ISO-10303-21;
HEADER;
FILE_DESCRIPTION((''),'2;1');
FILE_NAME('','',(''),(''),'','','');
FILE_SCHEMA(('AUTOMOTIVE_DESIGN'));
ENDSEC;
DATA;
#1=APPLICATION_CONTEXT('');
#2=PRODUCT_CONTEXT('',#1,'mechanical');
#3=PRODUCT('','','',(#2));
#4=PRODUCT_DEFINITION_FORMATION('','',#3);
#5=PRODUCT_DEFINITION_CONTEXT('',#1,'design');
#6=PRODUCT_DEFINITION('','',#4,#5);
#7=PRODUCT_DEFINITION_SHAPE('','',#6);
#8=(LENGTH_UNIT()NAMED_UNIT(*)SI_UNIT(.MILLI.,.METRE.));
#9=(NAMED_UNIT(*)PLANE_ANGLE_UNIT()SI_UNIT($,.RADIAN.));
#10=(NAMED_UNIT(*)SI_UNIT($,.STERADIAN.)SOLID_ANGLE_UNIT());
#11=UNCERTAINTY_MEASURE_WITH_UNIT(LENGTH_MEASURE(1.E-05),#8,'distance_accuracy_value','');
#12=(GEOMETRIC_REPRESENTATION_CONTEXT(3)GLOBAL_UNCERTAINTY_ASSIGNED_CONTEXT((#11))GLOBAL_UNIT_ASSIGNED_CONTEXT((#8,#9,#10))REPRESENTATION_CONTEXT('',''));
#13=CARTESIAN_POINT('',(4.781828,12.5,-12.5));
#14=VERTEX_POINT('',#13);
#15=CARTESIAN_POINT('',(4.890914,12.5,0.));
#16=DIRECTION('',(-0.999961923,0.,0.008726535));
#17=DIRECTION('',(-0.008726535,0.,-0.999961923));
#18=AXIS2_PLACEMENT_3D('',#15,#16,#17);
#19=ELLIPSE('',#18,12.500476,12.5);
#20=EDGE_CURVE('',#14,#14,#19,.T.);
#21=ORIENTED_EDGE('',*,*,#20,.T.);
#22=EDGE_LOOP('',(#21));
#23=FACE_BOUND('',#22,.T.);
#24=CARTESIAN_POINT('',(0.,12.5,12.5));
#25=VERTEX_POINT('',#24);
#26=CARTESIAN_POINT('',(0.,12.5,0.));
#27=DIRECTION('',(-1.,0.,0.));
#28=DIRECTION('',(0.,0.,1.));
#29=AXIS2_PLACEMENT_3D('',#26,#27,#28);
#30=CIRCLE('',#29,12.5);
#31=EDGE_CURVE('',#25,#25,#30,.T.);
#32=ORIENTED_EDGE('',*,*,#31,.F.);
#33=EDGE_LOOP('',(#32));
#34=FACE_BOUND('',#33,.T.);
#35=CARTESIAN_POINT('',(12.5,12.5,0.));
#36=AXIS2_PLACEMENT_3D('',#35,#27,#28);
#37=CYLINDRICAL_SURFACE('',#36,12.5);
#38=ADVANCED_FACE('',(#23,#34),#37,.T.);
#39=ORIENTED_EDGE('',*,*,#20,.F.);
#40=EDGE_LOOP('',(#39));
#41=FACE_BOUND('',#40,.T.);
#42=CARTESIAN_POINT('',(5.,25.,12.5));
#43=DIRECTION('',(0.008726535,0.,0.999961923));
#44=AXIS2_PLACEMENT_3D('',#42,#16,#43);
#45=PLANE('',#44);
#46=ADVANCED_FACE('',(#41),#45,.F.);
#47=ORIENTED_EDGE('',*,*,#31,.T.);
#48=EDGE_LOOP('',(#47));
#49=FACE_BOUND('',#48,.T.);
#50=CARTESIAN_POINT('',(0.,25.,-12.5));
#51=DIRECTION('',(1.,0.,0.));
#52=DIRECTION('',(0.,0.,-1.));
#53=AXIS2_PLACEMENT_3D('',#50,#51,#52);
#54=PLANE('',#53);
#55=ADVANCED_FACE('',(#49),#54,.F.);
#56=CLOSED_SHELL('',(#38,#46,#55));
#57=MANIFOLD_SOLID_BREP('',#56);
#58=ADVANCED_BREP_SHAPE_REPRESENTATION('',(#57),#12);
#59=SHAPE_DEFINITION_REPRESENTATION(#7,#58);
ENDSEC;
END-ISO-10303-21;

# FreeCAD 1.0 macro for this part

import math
import FreeCAD as App
import Part
import Sketcher
from FreeCAD import Vector
Q = App.Units.Quantity


def add_polygon(sketch, points):
    """Adds a closed chain of lines whose ends are joined by coincident constraints."""
    first, n = sketch.GeometryCount, len(points)
    for a, b in zip(points, points[1:] + points[:1]):
        sketch.addGeometry(Part.LineSegment(App.Vector(*a, 0), App.Vector(*b, 0)), False)
    for i in range(n):
        sketch.addConstraint(Sketcher.Constraint("Coincident", first + i, 2, first + (i + 1) % n, 1))

doc = App.newDocument("Part")
body = doc.addObject("PartDesign::Body", "Body")

# Sketch on XZ plane
sketch1 = body.newObject("Sketcher::SketchObject", "Sketch")
sketch1.AttachmentSupport = (doc.getObject("XZ_Plane"), [""])
sketch1.MapMode = "FlatFace"
add_polygon(sketch1, [(0, -12.5), (0, 12.5), (5, 12.5), (4.8, -12.5)])  # lines 0-3
sketch1.addConstraint([
    Sketcher.Constraint("Vertical", 0),
    Sketcher.Constraint("Horizontal", 1),
    Sketcher.Constraint("Horizontal", 3),
    Sketcher.Constraint("Symmetric", 0, 2, 3, 2, -1, 1),
    Sketcher.Constraint("DistanceX", 1, 1, 1, 2, 5.0),
    Sketcher.Constraint("DistanceY", 0, 1, 0, 2, 25.0),
    Sketcher.Constraint("Angle", 2, Q("-90.5 deg")),
])
pad1 = body.newObject("PartDesign::Pad", "Pad")
pad1.Profile = sketch1
pad1.Length = 25
pad1.Reversed = True

# Sketch on YZ plane
sketch2 = body.newObject("Sketcher::SketchObject", "Sketch001")
sketch2.AttachmentSupport = (doc.getObject("YZ_Plane"), [""])
sketch2.MapMode = "FlatFace"
sketch2.addGeometry([
    Part.LineSegment(Vector(25, -12, 0), Vector(12, -12, 0)),  # 0
    Part.ArcOfCircle(Part.Circle(Vector(13, 0, 0), Vector(0, 0, 1), 12), math.radians(-90), math.radians(0)),  # 1
    Part.LineSegment(Vector(25, 0, 0), Vector(25, -12, 0)),  # 2
    Part.LineSegment(Vector(12, -12, 0), Vector(0, -12, 0)),  # 3
    Part.LineSegment(Vector(0, -12, 0), Vector(0, 0, 0)),  # 4
    Part.ArcOfCircle(Part.Circle(Vector(12, 0, 0), Vector(0, 0, 1), 12), math.radians(-180), math.radians(-90)),  # 5
    Part.ArcOfCircle(Part.Circle(Vector(12, 0, 0), Vector(0, 0, 1), 12), math.radians(90), math.radians(180)),  # 6
    Part.LineSegment(Vector(0, 0, 0), Vector(0, 12, 0)),  # 7
    Part.LineSegment(Vector(0, 12, 0), Vector(12, 12, 0)),  # 8
    Part.ArcOfCircle(Part.Circle(Vector(13, 0, 0), Vector(0, 0, 1), 12), math.radians(0), math.radians(90)),  # 9
    Part.LineSegment(Vector(12, 12, 0), Vector(25, 12, 0)),  # 10
    Part.LineSegment(Vector(25, 12, 0), Vector(25, 0, 0)),  # 11
], False)
sketch2.addConstraint([
    Sketcher.Constraint("Tangent", 0, 2, 1, 1),
    Sketcher.Constraint("Tangent", 1, 2, 2, 1),
    Sketcher.Constraint("Coincident", 2, 2, 0, 1),
    Sketcher.Constraint("Coincident", 3, 2, 4, 1),
    Sketcher.Constraint("Tangent", 4, 2, 5, 1),
    Sketcher.Constraint("Tangent", 5, 2, 3, 1),
    Sketcher.Constraint("Tangent", 6, 2, 7, 1),
    Sketcher.Constraint("Coincident", 7, 2, 8, 1),
    Sketcher.Constraint("Tangent", 8, 2, 6, 1),
    Sketcher.Constraint("Tangent", 9, 2, 10, 1),
    Sketcher.Constraint("Coincident", 10, 2, 11, 1),
    Sketcher.Constraint("Tangent", 11, 2, 9, 1),
    Sketcher.Constraint("Horizontal", 0),
    Sketcher.Constraint("Vertical", 2),
    Sketcher.Constraint("Horizontal", 3),
    Sketcher.Constraint("Vertical", 4),
    Sketcher.Constraint("Vertical", 7),
    Sketcher.Constraint("Horizontal", 8),
    Sketcher.Constraint("Horizontal", 10),
    Sketcher.Constraint("Vertical", 11),
    Sketcher.Constraint("Coincident", 4, 2, -1, 1),
    Sketcher.Constraint("Coincident", 6, 2, -1, 1),
    Sketcher.Constraint("Coincident", 5, 3, 1, 3),
    Sketcher.Constraint("Coincident", 9, 3, 1, 3),
    Sketcher.Constraint("Coincident", 9, 2, 8, 2),
    Sketcher.Constraint("Equal", 1, 5),
    Sketcher.Constraint("Radius", 1, 12.5),
])
pocket1 = body.newObject("PartDesign::Pocket", "Pocket")
pocket1.Profile = sketch2
pocket1.Length = 12.5
pocket1.Reversed = True

doc.recompute()
